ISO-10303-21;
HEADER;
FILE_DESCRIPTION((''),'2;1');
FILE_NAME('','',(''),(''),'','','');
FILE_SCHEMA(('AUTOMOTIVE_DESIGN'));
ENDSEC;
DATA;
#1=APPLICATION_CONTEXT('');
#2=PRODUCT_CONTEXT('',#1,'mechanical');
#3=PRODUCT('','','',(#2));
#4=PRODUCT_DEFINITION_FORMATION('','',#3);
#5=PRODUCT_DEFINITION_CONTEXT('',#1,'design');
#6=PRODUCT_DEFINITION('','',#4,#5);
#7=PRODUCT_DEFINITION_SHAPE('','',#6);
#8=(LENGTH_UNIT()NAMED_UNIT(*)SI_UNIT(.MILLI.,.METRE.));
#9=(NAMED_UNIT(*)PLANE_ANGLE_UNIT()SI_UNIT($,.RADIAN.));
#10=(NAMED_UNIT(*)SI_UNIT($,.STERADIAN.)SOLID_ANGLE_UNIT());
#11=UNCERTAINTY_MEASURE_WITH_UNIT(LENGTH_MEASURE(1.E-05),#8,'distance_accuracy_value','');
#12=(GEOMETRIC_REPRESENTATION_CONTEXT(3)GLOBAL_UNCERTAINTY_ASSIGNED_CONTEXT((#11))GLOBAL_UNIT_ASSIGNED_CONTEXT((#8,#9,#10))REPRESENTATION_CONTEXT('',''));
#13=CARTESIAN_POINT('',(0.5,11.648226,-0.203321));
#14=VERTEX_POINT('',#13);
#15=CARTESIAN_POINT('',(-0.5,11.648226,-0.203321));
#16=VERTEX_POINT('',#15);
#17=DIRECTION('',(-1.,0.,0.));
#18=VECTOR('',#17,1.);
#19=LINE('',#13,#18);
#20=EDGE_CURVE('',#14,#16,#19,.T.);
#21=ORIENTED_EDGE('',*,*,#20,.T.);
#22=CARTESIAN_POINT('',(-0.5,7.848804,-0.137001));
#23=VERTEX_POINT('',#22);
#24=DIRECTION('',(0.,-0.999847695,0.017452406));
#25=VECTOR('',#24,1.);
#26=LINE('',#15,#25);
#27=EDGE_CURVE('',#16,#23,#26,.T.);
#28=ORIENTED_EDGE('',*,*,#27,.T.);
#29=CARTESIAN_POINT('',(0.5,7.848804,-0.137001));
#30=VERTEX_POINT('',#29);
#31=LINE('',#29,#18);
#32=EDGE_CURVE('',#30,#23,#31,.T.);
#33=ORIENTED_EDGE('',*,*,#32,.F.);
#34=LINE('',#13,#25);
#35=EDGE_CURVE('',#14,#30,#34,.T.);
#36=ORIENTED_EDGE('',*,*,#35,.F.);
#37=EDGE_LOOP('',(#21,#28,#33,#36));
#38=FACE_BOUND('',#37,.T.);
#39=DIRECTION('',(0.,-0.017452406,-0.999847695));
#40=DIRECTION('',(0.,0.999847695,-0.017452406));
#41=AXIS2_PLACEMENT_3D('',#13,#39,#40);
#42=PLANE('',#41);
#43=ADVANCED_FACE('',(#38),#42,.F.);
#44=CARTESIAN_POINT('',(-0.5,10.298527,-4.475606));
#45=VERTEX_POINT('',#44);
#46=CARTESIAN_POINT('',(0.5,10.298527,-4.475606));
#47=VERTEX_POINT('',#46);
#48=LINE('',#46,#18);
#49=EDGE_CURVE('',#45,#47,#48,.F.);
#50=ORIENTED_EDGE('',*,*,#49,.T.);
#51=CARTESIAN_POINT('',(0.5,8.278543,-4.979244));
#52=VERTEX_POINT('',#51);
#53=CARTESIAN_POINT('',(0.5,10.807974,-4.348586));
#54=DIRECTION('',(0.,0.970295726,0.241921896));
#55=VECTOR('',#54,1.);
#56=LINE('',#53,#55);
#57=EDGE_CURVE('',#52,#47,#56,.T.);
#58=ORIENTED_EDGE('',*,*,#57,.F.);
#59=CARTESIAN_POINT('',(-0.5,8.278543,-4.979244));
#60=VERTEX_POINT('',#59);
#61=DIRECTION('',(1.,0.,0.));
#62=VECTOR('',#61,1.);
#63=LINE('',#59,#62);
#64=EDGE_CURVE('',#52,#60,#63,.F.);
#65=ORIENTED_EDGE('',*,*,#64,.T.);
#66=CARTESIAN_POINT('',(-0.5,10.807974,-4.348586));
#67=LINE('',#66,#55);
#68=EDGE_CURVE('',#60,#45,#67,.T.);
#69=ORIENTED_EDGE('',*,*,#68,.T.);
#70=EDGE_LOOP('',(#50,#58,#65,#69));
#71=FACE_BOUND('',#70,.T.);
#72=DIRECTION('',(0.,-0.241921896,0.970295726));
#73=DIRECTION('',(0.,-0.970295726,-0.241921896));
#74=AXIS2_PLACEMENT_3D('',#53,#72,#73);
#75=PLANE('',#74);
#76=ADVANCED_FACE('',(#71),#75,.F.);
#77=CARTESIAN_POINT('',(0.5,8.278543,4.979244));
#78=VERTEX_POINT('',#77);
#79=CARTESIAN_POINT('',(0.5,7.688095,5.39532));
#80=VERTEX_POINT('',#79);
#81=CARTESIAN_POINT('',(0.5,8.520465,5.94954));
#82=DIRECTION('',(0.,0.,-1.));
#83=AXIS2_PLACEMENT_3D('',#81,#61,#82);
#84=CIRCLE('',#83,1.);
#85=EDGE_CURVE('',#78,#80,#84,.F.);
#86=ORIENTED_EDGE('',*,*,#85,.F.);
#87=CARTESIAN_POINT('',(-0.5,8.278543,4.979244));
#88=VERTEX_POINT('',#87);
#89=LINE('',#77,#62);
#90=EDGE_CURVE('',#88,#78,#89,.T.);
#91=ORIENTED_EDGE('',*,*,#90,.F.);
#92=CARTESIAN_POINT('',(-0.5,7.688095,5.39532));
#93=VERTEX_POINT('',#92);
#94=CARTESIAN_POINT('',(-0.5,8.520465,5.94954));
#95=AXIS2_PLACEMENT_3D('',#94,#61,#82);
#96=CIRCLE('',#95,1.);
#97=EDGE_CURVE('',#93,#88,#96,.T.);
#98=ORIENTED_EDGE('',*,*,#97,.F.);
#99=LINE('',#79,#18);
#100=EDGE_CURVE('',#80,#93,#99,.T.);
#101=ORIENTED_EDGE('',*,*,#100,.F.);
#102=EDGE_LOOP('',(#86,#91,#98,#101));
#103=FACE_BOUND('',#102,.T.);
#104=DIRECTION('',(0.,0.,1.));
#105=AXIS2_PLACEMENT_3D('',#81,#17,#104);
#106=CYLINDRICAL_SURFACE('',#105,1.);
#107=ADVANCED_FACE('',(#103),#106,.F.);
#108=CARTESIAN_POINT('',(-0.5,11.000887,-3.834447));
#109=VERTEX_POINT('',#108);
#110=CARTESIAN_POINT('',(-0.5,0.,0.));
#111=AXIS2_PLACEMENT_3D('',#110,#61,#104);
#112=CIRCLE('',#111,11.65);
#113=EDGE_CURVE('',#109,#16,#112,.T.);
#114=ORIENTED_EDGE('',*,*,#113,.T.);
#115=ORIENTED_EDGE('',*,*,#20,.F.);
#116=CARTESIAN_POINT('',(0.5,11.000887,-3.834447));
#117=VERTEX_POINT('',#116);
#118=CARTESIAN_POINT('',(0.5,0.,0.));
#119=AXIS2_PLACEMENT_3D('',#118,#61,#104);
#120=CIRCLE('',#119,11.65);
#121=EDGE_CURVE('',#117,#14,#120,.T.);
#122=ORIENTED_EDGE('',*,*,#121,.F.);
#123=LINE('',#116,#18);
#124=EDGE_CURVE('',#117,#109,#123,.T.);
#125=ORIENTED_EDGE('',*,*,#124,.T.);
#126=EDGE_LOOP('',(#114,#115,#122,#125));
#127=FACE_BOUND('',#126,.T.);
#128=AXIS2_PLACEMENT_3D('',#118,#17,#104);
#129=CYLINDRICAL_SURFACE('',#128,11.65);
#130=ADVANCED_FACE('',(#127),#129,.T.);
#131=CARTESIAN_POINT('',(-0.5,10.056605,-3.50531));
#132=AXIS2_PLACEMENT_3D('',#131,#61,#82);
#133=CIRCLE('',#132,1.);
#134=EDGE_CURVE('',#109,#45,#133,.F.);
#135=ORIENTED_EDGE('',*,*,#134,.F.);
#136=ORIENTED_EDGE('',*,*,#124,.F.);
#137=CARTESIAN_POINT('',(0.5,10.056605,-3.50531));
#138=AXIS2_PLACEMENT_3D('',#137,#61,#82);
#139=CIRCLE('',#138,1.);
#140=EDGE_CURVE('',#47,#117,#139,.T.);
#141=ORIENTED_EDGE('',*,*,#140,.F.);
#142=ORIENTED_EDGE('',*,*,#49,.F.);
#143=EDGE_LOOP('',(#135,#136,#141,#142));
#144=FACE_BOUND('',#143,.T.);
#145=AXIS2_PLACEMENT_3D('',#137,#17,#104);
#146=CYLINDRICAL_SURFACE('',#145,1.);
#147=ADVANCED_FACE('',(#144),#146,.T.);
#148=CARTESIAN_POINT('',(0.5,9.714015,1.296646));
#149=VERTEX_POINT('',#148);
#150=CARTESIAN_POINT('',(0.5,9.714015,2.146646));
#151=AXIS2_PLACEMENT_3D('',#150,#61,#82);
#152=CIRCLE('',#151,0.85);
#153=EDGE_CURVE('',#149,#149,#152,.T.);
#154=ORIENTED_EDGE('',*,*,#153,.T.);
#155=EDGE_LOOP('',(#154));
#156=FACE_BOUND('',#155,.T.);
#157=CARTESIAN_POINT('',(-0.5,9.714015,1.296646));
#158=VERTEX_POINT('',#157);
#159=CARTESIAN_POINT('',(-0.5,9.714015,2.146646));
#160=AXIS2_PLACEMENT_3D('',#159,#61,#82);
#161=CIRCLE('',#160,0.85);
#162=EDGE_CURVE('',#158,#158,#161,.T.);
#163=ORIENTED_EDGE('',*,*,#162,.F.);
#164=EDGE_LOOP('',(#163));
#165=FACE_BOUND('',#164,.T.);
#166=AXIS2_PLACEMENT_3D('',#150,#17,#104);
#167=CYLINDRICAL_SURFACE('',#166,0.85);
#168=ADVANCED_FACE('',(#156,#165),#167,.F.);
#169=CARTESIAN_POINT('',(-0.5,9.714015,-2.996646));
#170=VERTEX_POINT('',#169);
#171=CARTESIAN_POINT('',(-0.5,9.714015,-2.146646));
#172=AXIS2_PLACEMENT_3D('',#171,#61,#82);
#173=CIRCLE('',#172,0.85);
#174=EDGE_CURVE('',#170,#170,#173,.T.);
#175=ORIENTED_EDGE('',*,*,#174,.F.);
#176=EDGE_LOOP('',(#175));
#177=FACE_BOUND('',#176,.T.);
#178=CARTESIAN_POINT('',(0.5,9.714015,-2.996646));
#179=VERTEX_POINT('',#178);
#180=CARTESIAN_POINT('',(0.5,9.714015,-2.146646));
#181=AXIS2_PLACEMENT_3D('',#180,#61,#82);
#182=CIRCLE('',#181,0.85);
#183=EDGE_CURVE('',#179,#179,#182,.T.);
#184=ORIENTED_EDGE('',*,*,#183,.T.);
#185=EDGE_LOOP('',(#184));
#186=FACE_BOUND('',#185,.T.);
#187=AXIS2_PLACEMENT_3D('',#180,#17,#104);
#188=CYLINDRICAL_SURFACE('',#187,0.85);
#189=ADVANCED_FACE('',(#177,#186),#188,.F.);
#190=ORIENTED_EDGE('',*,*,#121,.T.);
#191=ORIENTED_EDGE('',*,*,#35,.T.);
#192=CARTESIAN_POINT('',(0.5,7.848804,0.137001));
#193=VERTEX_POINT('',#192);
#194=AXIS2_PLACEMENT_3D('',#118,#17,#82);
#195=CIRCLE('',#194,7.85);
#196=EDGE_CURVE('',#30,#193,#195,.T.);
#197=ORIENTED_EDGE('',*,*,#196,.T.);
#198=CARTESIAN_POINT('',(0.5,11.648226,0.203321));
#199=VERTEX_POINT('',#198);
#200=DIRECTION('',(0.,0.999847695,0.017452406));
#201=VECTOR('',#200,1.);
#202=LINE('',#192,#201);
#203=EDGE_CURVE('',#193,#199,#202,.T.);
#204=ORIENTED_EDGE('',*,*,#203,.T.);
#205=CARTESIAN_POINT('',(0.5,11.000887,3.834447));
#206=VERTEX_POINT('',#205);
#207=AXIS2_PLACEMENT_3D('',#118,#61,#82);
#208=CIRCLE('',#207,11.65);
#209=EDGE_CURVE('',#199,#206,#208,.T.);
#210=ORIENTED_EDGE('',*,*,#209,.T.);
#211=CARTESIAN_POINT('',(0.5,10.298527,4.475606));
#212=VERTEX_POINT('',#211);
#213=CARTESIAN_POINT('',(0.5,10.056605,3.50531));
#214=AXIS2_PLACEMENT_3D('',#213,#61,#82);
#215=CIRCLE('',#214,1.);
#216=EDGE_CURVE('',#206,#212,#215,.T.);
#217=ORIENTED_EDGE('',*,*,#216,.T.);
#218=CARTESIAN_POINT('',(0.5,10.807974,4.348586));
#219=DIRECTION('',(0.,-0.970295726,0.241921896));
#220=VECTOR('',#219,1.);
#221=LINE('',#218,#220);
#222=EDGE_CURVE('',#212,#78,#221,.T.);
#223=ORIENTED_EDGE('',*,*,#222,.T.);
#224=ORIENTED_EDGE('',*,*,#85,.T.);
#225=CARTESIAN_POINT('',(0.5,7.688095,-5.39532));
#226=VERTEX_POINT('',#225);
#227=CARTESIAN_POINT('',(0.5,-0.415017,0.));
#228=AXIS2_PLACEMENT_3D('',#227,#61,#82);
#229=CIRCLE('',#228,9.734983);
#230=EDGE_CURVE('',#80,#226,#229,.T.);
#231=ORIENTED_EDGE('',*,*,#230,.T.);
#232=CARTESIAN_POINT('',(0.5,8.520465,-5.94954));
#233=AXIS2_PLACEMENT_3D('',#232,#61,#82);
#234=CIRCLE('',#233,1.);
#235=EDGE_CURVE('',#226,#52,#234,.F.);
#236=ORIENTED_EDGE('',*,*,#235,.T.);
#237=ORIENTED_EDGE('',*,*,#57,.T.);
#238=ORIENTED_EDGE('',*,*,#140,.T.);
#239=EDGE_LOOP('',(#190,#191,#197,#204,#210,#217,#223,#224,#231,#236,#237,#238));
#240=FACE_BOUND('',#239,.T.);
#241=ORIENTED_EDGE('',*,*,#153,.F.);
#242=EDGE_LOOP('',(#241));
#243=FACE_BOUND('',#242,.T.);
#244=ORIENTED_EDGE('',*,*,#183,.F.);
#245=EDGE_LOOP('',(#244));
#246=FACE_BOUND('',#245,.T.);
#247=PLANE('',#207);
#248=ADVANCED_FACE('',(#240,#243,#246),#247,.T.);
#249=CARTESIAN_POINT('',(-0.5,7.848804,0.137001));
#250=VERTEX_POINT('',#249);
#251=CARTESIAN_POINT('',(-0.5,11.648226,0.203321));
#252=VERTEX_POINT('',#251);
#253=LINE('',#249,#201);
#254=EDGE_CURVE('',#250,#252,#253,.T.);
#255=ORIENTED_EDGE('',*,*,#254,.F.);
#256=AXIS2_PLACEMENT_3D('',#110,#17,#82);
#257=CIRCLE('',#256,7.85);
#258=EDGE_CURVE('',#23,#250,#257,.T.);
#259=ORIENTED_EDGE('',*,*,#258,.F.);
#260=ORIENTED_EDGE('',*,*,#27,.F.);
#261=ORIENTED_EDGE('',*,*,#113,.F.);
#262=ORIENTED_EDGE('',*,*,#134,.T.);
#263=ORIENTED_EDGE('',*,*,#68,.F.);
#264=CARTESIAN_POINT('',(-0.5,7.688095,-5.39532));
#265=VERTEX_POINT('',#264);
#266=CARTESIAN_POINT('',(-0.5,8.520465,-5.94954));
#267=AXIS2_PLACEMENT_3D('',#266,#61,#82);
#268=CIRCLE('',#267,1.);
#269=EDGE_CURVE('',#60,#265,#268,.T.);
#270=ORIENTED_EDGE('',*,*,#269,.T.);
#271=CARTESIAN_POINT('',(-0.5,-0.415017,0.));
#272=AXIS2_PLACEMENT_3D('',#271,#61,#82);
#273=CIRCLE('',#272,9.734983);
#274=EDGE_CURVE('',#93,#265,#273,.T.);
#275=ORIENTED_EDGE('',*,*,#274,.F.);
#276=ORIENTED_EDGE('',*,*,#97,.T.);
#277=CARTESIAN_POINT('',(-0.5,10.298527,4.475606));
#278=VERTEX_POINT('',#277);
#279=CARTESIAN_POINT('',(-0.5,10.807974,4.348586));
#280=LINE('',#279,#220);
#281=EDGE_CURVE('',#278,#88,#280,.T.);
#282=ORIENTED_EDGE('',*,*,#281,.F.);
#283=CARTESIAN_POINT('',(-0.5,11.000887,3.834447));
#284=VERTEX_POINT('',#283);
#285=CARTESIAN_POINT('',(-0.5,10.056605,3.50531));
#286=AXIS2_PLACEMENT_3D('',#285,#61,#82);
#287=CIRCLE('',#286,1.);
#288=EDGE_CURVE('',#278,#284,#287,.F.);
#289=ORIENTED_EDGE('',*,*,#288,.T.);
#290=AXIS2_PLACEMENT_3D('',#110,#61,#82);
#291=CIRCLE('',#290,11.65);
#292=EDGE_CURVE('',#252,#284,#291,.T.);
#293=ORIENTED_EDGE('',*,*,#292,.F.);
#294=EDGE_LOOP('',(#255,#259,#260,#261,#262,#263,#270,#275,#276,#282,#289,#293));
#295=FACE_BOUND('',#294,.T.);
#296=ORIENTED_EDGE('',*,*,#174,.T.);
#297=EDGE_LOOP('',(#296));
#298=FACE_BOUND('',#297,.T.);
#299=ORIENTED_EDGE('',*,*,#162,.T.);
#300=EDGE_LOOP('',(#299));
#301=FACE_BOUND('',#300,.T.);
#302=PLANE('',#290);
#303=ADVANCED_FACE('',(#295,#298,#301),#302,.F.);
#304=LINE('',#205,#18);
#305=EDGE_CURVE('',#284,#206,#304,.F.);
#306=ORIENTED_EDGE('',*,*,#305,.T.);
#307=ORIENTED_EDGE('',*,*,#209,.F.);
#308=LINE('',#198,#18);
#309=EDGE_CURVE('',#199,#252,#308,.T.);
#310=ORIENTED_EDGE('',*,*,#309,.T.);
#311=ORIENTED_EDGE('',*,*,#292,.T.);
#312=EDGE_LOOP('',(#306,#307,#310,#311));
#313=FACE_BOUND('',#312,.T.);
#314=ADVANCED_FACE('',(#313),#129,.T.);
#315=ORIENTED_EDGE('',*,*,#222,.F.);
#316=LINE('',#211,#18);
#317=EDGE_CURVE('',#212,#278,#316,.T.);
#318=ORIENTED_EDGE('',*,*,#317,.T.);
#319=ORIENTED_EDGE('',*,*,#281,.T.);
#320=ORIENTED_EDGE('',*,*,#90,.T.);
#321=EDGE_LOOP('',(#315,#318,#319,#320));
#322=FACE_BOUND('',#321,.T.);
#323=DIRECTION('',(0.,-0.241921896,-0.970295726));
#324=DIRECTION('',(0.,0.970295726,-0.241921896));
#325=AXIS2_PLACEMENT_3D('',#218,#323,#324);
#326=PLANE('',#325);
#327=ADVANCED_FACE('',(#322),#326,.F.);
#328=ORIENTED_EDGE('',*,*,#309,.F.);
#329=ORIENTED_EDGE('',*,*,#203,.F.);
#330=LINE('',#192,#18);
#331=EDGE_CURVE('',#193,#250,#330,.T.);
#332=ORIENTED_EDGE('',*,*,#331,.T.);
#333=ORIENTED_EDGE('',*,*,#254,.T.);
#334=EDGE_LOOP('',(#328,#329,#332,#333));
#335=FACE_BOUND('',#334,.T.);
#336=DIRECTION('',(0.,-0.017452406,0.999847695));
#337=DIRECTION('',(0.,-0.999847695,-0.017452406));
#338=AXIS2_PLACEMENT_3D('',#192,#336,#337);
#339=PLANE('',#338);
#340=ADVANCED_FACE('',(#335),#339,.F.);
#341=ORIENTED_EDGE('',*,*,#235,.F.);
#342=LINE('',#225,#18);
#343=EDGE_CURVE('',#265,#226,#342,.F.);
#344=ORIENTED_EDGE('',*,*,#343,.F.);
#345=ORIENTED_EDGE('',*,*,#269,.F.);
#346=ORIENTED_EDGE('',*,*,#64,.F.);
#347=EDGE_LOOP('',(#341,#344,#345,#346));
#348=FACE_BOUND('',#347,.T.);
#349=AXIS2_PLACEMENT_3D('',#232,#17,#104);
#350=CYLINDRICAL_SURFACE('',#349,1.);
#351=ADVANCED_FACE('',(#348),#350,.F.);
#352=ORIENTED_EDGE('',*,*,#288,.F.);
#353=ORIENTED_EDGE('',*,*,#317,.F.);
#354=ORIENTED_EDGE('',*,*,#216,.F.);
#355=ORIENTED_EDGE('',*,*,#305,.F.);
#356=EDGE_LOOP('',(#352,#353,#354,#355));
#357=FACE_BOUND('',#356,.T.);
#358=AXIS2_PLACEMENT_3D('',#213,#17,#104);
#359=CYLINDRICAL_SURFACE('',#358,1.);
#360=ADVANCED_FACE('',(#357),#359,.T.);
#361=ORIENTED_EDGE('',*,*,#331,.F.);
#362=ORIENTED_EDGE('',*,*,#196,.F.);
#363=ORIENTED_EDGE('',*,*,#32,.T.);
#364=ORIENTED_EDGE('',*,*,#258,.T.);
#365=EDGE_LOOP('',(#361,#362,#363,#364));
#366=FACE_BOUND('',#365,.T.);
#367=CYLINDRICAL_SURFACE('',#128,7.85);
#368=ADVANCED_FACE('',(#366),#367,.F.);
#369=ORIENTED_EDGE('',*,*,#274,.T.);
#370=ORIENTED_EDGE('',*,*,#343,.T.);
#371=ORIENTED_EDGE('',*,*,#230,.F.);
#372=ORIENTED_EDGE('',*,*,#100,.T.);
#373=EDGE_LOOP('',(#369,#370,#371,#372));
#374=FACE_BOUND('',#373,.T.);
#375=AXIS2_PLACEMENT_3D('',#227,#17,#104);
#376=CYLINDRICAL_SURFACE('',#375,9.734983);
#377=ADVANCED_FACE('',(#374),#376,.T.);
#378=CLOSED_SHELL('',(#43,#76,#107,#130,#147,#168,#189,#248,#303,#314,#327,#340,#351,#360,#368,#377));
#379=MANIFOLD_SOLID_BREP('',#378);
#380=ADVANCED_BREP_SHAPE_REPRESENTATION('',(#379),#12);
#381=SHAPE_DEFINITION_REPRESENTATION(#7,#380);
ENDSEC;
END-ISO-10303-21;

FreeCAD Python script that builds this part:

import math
import FreeCAD as App
import Part
import Sketcher
from FreeCAD import Vector
Q = App.Units.Quantity


def edges_at(feature, points):
    """Names of the edges that pass closest to the given points."""
    edges = feature.Shape.Edges
    near = lambda p: min(range(len(edges)), key=lambda i: edges[i].distToShape(Part.Vertex(*p))[0])
    return sorted({f"Edge{near(p) + 1}" for p in points})

doc = App.newDocument("Part")
body = doc.addObject("PartDesign::Body", "Body")

sketch1 = doc.addObject("Sketcher::SketchObject", "Sketch")
body.addObject(sketch1)
sketch1.AttachmentSupport = (doc.YZ_Plane, [""])
sketch1.MapMode = "FlatFace"
sketch1.addGeometry(Part.LineSegment(Vector(7.85, 0.14, 0), Vector(11.65, 0.2, 0)), False)
sketch1.addGeometry(Part.ArcOfCircle(Part.Circle(Vector(0, 0, 0), Vector(0, 0, 1), 11.65), math.radians(1), math.radians(22)), False)
sketch1.addGeometry(Part.LineSegment(Vector(10.81, 4.35, 0), Vector(7.89, 5.08, 0)), False)
sketch1.addGeometry(Part.ArcOfCircle(Part.Circle(Vector(-0.42, 0, 0), Vector(0, 0, 1), 9.73), math.radians(31), math.radians(329)), False)
sketch1.addGeometry(Part.LineSegment(Vector(7.89, -5.08, 0), Vector(10.81, -4.35, 0)), False)
sketch1.addGeometry(Part.ArcOfCircle(Part.Circle(Vector(0, 0, 0), Vector(0, 0, 1), 11.65), math.radians(-22), math.radians(-1)), False)
sketch1.addGeometry(Part.LineSegment(Vector(11.65, -0.2, 0), Vector(7.85, -0.14, 0)), False)
sketch1.addGeometry(Part.ArcOfCircle(Part.Circle(Vector(0, 0, 0), Vector(0, 0, 1), 7.85), math.radians(1), math.radians(359)), False)
sketch1.addGeometry(Part.Circle(Vector(9.71, 2.15, 0), Vector(0, 0, 1), 0.85), False)
sketch1.addGeometry(Part.Circle(Vector(9.71, -2.15, 0), Vector(0, 0, 1), 0.85), False)
sketch1.addConstraint(Sketcher.Constraint("Coincident", 0, 2, 1, 1))
sketch1.addConstraint(Sketcher.Constraint("Coincident", 1, 2, 2, 1))
sketch1.addConstraint(Sketcher.Constraint("Coincident", 2, 2, 3, 1))
sketch1.addConstraint(Sketcher.Constraint("Coincident", 3, 2, 4, 1))
sketch1.addConstraint(Sketcher.Constraint("Coincident", 4, 2, 5, 1))
sketch1.addConstraint(Sketcher.Constraint("Coincident", 5, 2, 6, 1))
sketch1.addConstraint(Sketcher.Constraint("Coincident", 6, 2, 7, 2))
sketch1.addConstraint(Sketcher.Constraint("Coincident", 7, 1, 0, 1))
sketch1.addConstraint(Sketcher.Constraint("Coincident", 1, 3, -1, 1))
sketch1.addConstraint(Sketcher.Constraint("Coincident", 5, 3, -1, 1))
sketch1.addConstraint(Sketcher.Constraint("Coincident", 7, 3, -1, 1))
sketch1.addConstraint(Sketcher.Constraint("Equal", 1, 5))
sketch1.addConstraint(Sketcher.Constraint("Equal", 8, 9))
sketch1.addConstraint(Sketcher.Constraint("Symmetric", 8, 3, 9, 3, -1))
sketch1.addConstraint(Sketcher.Constraint("Symmetric", 2, 2, 3, 2, -1))
sketch1.addConstraint(Sketcher.Constraint("Vertical", 1, 2, 4, 2))
sketch1.addConstraint(Sketcher.Constraint("Vertical", 0, 2, 5, 2))
sketch1.addConstraint(Sketcher.Constraint("Vertical", 6, 2, 7, 1))
sketch1.addConstraint(Sketcher.Constraint("Diameter", 8, Q("1.7 mm")))
sketch1.addConstraint(Sketcher.Constraint("Angle", 0, Q("1 deg")))
sketch1.addConstraint(Sketcher.Constraint("Angle", 2, Q("166 deg")))
sketch1.addConstraint(Sketcher.Constraint("Radius", 1, Q("11.65 mm")))
sketch1.addConstraint(Sketcher.Constraint("Radius", 7, Q("7.85 mm")))
sketch1.addConstraint(Sketcher.Constraint("DistanceY", 6, 2, -1, 1, Q("0.137001 mm")))
sketch1.addConstraint(Sketcher.Constraint("Radius", 3, Q("9.734983 mm")))
sketch1.addConstraint(Sketcher.Constraint("DistanceX", 6, 2, 3, 2, Q("0.043298 mm")))
sketch1.addConstraint(Sketcher.Constraint("DistanceX", 8, 3, 0, 2, Q("1.93421 mm")))
sketch1.addConstraint(Sketcher.Constraint("DistanceX", 8, 3, 1, 2, Q("1.093958 mm")))
sketch1.addConstraint(Sketcher.Constraint("DistanceY", 8, 3, 1, 2, Q("2.20194 mm")))
pad1 = doc.addObject("PartDesign::Pad", "Pad")
body.addObject(pad1)
pad1.Profile = sketch1
pad1.Length = 1
pad1.Midplane = True
doc.recompute()

fillet = doc.addObject("PartDesign::Fillet", "Fillet")
body.addObject(fillet)
fillet.Base = (pad1, edges_at(pad1, [
    (0, 10.808, -4.349),
    (0, 7.892, -5.076),
    (0, 7.892, 5.076),
    (0, 10.808, 4.349),
]))
fillet.Radius = 1

doc.recompute()
